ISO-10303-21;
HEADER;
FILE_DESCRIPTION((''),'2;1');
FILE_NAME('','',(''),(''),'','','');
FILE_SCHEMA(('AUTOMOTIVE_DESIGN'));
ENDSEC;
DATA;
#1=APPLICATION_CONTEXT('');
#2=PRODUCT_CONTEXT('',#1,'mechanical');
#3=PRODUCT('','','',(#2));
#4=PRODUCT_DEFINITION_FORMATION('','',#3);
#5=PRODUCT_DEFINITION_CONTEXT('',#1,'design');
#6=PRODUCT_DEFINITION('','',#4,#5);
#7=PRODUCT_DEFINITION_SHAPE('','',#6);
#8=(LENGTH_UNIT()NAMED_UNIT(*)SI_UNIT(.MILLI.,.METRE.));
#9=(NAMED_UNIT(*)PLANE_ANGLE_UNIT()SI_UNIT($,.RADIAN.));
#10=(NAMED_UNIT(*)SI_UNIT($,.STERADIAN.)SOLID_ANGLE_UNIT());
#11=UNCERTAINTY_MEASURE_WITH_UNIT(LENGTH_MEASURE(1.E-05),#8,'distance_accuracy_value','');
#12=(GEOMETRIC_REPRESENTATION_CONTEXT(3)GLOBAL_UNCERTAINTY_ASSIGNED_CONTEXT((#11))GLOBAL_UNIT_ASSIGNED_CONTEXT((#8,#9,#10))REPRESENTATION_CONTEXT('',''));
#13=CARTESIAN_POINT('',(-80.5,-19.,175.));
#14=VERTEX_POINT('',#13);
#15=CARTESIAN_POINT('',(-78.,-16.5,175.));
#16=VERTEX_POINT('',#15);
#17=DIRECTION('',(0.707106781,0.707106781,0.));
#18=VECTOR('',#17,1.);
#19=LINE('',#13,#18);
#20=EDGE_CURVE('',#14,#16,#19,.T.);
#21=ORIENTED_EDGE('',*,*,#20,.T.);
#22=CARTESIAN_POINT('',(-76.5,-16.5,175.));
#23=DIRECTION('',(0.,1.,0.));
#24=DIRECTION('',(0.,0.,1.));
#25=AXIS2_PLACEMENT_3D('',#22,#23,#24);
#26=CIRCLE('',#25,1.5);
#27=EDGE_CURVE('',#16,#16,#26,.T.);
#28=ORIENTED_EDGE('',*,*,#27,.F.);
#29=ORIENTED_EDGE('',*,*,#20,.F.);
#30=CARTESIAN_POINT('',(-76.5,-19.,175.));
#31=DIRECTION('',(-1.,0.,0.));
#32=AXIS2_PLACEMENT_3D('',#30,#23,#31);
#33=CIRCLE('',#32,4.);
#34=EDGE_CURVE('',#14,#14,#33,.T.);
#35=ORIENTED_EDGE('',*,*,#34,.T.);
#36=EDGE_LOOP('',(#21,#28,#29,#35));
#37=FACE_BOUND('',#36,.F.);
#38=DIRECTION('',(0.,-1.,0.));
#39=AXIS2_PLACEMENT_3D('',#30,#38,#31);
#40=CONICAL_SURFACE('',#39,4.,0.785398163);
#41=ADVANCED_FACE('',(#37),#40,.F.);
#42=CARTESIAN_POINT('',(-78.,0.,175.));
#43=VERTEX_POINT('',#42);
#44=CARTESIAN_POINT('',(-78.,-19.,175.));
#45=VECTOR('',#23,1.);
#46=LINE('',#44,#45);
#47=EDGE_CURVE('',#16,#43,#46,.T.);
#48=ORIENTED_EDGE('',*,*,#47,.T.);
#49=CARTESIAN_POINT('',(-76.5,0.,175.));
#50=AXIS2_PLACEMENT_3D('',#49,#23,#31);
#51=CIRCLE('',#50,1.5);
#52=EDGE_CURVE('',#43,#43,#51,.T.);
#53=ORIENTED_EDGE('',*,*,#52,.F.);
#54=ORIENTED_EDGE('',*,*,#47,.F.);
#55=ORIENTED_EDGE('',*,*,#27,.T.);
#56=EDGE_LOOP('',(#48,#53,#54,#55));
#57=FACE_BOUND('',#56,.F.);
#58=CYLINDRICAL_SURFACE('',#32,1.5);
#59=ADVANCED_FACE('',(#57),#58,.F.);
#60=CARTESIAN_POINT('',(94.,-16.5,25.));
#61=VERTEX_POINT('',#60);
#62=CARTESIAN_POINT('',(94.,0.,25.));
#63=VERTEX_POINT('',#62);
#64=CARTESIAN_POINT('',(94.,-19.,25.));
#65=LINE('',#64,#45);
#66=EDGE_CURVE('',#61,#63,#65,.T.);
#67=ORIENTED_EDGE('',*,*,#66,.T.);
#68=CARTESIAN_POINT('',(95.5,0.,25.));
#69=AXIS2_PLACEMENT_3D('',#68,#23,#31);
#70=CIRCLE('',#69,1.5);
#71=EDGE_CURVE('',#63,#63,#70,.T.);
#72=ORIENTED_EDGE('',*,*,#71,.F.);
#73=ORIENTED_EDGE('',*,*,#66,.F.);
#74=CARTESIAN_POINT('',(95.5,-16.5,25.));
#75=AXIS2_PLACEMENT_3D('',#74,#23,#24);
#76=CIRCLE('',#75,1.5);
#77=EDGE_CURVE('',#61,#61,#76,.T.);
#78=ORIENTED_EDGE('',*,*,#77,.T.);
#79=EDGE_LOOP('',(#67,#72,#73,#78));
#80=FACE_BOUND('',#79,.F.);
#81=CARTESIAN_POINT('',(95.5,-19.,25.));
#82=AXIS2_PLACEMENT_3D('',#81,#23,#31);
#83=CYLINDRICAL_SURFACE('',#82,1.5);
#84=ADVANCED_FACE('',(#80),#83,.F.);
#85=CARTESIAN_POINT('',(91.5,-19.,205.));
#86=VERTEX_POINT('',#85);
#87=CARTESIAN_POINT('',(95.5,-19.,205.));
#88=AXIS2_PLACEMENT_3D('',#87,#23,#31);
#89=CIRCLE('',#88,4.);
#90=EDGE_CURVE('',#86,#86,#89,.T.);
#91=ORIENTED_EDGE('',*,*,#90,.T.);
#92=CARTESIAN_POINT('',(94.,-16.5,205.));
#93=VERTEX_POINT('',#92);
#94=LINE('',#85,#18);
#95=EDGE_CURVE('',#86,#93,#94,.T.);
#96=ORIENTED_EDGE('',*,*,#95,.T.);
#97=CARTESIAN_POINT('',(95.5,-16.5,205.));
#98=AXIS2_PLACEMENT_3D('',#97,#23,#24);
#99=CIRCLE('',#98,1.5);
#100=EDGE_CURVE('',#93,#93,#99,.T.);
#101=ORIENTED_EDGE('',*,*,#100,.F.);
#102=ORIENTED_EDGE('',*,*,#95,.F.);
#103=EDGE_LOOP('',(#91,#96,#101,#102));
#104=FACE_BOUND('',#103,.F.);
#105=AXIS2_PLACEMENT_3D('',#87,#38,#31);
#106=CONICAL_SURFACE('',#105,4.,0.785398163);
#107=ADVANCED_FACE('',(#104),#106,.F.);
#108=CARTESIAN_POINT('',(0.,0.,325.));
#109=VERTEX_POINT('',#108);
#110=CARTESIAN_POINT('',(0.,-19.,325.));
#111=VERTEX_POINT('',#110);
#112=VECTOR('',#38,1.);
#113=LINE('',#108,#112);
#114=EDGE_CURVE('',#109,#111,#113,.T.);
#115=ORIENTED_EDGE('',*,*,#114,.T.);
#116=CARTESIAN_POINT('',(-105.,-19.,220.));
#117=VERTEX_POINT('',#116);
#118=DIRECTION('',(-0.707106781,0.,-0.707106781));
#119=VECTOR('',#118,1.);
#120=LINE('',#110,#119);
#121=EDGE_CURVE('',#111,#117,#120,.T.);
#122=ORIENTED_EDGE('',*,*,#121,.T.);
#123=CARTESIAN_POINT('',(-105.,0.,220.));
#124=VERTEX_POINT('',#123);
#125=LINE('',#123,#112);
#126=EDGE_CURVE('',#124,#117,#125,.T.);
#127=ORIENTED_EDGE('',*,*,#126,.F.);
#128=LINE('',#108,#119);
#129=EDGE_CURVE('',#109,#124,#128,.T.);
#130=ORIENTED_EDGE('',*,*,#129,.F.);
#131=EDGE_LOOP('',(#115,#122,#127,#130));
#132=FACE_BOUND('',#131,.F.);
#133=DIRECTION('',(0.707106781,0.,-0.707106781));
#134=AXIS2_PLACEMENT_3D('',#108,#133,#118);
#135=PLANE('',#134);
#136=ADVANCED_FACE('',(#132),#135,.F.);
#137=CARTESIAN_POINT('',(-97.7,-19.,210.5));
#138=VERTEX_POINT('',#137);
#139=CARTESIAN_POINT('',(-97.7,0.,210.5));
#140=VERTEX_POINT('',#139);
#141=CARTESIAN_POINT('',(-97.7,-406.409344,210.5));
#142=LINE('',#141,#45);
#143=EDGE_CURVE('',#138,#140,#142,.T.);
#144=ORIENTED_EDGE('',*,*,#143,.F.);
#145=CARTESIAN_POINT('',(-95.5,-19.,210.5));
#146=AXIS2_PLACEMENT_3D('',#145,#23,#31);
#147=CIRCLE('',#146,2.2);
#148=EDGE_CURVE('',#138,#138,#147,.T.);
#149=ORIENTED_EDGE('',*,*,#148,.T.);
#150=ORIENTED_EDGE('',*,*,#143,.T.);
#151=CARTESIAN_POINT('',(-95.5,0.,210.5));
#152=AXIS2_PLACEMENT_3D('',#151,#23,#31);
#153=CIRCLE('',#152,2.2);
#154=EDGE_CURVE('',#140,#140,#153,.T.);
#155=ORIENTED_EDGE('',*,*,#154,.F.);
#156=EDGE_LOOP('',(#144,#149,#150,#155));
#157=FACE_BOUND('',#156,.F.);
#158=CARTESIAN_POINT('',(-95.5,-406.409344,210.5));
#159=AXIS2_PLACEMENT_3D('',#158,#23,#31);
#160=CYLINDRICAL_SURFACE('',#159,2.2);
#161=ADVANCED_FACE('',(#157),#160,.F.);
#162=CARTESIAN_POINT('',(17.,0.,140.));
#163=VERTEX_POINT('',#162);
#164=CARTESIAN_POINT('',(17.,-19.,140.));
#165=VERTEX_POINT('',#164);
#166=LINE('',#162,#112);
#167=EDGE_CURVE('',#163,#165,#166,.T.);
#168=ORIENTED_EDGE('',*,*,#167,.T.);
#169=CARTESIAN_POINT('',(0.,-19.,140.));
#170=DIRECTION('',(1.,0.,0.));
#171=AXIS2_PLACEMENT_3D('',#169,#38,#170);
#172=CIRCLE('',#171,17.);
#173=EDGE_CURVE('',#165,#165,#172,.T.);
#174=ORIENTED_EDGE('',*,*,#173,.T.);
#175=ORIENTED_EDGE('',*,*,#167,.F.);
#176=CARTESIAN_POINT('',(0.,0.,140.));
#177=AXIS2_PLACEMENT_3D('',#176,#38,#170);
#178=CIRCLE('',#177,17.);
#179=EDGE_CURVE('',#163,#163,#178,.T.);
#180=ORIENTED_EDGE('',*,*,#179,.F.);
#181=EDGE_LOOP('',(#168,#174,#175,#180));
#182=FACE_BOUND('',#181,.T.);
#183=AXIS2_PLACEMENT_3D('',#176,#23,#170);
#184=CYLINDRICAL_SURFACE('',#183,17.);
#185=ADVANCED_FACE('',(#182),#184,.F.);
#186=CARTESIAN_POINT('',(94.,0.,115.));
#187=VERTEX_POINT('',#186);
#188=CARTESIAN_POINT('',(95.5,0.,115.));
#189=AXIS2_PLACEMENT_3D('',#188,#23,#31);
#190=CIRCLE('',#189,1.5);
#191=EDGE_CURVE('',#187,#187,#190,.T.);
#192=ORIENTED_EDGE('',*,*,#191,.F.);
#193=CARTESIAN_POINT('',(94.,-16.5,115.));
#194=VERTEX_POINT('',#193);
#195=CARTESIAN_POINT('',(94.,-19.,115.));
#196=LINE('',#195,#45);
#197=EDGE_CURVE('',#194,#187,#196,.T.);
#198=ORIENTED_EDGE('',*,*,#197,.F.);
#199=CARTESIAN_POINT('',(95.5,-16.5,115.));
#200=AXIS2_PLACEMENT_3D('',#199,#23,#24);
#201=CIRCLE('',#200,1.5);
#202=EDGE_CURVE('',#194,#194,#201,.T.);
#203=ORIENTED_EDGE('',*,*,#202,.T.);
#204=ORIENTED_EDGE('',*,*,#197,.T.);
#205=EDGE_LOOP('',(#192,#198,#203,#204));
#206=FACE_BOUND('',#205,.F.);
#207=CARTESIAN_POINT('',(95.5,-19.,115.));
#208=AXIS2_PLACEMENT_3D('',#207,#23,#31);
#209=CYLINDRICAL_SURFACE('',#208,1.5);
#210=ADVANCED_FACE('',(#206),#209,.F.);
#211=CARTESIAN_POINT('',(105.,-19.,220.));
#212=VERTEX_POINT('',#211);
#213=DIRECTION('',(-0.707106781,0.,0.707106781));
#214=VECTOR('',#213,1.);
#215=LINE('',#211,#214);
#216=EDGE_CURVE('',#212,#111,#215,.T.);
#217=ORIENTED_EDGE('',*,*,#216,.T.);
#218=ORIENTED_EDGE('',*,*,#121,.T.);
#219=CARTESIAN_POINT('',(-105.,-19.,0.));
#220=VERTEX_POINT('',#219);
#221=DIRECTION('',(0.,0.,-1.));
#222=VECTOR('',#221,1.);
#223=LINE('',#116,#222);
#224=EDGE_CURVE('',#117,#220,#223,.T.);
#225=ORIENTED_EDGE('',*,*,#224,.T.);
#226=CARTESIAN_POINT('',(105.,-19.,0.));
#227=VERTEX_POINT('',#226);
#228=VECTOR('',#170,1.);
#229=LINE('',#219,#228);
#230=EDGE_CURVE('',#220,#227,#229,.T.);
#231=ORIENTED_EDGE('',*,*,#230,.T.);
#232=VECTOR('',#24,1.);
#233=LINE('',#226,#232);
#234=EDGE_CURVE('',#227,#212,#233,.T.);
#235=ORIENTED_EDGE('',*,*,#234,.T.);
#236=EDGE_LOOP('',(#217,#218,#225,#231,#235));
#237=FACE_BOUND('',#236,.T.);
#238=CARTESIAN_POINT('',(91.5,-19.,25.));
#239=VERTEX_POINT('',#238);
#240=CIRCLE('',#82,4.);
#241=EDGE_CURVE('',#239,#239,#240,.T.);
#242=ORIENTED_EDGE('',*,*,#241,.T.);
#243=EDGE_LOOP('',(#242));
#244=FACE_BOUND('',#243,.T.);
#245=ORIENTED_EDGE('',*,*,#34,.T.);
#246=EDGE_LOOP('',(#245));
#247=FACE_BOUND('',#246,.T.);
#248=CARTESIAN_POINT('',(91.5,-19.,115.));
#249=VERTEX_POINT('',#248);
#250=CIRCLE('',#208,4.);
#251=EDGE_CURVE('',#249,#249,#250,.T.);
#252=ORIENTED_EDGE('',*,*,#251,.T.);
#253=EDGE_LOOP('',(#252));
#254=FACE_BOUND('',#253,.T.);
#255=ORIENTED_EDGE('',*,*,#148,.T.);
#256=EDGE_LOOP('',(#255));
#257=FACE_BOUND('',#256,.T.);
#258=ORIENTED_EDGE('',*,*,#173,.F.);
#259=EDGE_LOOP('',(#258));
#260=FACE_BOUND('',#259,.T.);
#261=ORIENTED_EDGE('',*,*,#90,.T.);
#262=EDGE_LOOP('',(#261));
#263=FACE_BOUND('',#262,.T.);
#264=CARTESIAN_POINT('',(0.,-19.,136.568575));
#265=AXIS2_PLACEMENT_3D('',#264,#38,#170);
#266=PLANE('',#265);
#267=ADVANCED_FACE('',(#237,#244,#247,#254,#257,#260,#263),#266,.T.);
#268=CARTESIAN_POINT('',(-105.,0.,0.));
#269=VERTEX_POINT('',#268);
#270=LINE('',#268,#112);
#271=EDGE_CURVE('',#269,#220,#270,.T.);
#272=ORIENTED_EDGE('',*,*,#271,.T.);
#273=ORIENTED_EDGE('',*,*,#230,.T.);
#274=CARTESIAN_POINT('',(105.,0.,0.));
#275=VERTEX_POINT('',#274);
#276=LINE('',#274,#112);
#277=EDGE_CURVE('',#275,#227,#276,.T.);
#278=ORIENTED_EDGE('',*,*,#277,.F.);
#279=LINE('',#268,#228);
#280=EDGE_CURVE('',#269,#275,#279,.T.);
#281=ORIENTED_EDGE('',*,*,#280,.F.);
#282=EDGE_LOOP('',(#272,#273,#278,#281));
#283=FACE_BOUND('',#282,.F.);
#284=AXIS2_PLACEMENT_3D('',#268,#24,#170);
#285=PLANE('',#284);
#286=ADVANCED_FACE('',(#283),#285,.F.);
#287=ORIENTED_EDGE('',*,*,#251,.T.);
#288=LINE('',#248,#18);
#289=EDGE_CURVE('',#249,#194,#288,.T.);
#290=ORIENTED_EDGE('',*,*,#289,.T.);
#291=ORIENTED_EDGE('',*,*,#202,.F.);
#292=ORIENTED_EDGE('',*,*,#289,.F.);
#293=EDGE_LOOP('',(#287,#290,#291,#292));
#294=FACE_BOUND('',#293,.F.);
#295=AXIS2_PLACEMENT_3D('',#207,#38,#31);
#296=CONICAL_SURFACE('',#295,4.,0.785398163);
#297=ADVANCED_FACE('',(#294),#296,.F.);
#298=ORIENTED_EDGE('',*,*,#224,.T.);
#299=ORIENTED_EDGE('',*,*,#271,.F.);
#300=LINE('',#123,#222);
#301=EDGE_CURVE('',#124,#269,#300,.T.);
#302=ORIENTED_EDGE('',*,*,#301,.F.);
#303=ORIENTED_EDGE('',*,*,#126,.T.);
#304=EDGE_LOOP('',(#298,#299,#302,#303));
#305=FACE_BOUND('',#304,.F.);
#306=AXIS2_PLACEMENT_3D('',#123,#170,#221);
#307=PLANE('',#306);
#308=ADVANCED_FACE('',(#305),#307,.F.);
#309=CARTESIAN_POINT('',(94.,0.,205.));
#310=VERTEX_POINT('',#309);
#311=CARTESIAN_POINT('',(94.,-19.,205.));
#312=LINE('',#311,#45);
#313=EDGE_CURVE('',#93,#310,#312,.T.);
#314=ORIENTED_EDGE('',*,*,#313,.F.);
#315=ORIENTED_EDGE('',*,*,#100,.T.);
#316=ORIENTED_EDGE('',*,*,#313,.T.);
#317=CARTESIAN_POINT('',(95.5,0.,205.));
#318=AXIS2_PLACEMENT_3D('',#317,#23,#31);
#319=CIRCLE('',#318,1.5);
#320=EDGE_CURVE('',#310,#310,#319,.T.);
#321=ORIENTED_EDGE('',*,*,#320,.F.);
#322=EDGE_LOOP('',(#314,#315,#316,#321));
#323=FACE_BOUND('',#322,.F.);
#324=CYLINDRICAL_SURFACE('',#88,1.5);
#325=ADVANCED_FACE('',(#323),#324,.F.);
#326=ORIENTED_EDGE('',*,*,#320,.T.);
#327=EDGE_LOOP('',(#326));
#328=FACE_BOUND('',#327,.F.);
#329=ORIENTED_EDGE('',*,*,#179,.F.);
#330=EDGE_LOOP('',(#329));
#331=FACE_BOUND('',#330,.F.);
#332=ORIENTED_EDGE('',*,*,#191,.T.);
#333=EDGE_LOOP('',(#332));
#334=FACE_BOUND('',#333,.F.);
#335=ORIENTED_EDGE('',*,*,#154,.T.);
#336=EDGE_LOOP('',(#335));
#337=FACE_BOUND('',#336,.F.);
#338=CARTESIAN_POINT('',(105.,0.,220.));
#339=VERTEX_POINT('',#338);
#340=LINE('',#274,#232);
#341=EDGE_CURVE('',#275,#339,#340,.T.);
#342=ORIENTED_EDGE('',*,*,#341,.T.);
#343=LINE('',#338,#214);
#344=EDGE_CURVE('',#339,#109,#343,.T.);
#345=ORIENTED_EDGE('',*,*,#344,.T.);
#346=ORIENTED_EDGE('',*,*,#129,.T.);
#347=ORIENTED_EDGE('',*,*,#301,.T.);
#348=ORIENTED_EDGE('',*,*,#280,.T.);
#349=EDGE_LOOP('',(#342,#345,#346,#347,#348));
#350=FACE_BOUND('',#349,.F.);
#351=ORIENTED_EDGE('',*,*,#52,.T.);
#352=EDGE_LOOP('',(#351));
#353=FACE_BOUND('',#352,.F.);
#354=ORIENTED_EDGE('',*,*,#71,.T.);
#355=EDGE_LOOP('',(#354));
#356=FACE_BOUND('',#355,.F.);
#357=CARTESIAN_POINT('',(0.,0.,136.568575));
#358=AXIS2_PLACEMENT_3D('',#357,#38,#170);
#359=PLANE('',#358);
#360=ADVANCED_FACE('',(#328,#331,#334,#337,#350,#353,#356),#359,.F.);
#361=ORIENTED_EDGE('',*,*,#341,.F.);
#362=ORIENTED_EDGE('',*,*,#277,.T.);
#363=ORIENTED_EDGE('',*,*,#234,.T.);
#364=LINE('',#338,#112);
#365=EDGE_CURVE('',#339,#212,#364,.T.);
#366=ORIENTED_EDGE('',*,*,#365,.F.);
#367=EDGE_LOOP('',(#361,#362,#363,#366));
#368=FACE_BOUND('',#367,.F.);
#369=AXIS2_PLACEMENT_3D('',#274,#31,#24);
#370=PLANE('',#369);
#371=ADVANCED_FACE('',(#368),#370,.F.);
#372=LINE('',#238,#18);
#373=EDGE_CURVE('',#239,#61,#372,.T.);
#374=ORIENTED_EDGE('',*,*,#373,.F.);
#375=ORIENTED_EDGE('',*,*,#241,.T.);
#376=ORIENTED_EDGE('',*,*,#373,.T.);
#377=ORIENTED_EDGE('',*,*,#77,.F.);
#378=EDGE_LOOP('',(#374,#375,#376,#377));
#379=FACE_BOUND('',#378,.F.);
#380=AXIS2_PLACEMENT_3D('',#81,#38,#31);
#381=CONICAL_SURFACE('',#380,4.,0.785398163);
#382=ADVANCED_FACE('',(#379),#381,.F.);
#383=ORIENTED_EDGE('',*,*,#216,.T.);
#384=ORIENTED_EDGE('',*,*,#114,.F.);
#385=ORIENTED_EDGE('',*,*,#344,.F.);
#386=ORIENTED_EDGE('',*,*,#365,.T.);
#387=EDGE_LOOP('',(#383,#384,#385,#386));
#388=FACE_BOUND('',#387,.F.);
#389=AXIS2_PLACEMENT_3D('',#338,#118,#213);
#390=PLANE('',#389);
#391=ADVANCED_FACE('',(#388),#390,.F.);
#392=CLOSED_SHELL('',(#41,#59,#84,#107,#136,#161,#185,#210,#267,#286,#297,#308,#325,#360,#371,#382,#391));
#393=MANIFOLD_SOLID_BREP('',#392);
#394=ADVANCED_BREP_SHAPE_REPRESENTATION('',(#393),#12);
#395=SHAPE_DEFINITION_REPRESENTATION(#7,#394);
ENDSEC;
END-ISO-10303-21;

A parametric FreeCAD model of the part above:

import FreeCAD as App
import Part
import Sketcher
from FreeCAD import Vector


def add_polygon(sketch, points):
    """Adds a closed chain of lines whose ends are joined by coincident constraints."""
    first, n = sketch.GeometryCount, len(points)
    for a, b in zip(points, points[1:] + points[:1]):
        sketch.addGeometry(Part.LineSegment(App.Vector(*a, 0), App.Vector(*b, 0)), False)
    for i in range(n):
        sketch.addConstraint(Sketcher.Constraint("Coincident", first + i, 2, first + (i + 1) % n, 1))

doc = App.newDocument("Part")
body = doc.addObject("PartDesign::Body", "Body")

# Sketch on XZ plane
sketch1 = doc.addObject("Sketcher::SketchObject", "Sketch")
body.addObject(sketch1)
sketch1.AttachmentSupport = (doc.XZ_Plane, [""])
sketch1.MapMode = "FlatFace"
add_polygon(sketch1, [(105, 0), (105, 220), (0, 325), (-105, 220), (-105, 0)])  # lines 0-4
sketch1.addGeometry(Part.Circle(Vector(0, 140, 0), Vector(0, 0, 1), 17), False)  # 5
sketch1.addConstraint(Sketcher.Constraint("Vertical", 0))
sketch1.addConstraint(Sketcher.Constraint("Vertical", 3))
sketch1.addConstraint(Sketcher.Constraint("Horizontal", 4))
sketch1.addConstraint(Sketcher.Constraint("Symmetric", 3, 2, 4, 2, -1, 1))
sketch1.addConstraint(Sketcher.Constraint("PointOnObject", 5, 3, -2))
sketch1.addConstraint(Sketcher.Constraint("PointOnObject", 1, 2, -2))
sketch1.addConstraint(Sketcher.Constraint("Perpendicular", 1, 2))
sketch1.addConstraint(Sketcher.Constraint("Horizontal", 0, 2, 2, 2))
sketch1.addConstraint(Sketcher.Constraint("Diameter", 5, 34.0))
sketch1.addConstraint(Sketcher.Constraint("DistanceX", 4, 1, 4, 2, 210.0))
sketch1.addConstraint(Sketcher.Constraint("DistanceY", 0, 1, 0, 2, 220.0))
sketch1.addConstraint(Sketcher.Constraint("DistanceY", -1, 1, 5, 3, 140.0))
pad1 = doc.addObject("PartDesign::Pad", "Pad")
body.addObject(pad1)
pad1.Profile = sketch1
pad1.Length = 19

# Sketch on XZ plane
sketch2 = doc.addObject("Sketcher::SketchObject", "Sketch001")
body.addObject(sketch2)
sketch2.AttachmentSupport = (doc.XZ_Plane, [""])
sketch2.MapMode = "FlatFace"
sketch2.AttachmentOffset = App.Placement(Vector(0, 0, 19), App.Rotation())
sketch2.addGeometry(Part.Circle(Vector(95.5, 25, 0), Vector(0, 0, 1), 1.5), False)
sketch2.addGeometry(Part.Circle(Vector(95.5, 115, 0), Vector(0, 0, 1), 1.5), False)
sketch2.addGeometry(Part.Circle(Vector(95.5, 205, 0), Vector(0, 0, 1), 1.5), False)
sketch2.addGeometry(Part.Circle(Vector(-76.5, 175, 0), Vector(0, 0, 1), 1.5), False)
sketch2.addConstraint(Sketcher.Constraint("Equal", 0, 1))
sketch2.addConstraint(Sketcher.Constraint("Equal", 1, 2))
sketch2.addConstraint(Sketcher.Constraint("Equal", 2, 3))
sketch2.addConstraint(Sketcher.Constraint("Vertical", 0, 3, 1, 3))
sketch2.addConstraint(Sketcher.Constraint("Vertical", 1, 3, 2, 3))
sketch2.addConstraint(Sketcher.Constraint("Diameter", 0, 3.0))
sketch2.addConstraint(Sketcher.Constraint("DistanceY", -1, 1, 0, 3, 25.0))
sketch2.addConstraint(Sketcher.Constraint("DistanceY", -1, 1, 1, 3, 115.0))
sketch2.addConstraint(Sketcher.Constraint("DistanceY", -1, 1, 2, 3, 205.0))
sketch2.addConstraint(Sketcher.Constraint("DistanceY", -1, 1, 3, 3, 175.0))
sketch2.addConstraint(Sketcher.Constraint("DistanceX", 3, 3, 2, 3, 172.0))
sketch2.addConstraint(Sketcher.Constraint("DistanceX", -1, 1, 0, 3, 95.5))
doc.recompute()
hole = doc.addObject("PartDesign::Hole", "Hole")
body.addObject(hole)
hole.Profile = sketch2
hole.ThreadType = "None"
hole.Diameter = 3
hole.DepthType = "ThroughAll"
hole.HoleCutType = "Countersink"
hole.HoleCutDiameter = 8
hole.HoleCutCountersinkAngle = 90

# Sketch on XZ plane
sketch3 = doc.addObject("Sketcher::SketchObject", "Sketch002")
body.addObject(sketch3)
sketch3.AttachmentSupport = (doc.XZ_Plane, [""])
sketch3.MapMode = "FlatFace"
sketch3.AttachmentOffset = App.Placement(Vector(0, 0, 19), App.Rotation())
sketch3.addGeometry(Part.Circle(Vector(-95.5, 210.5, 0), Vector(0, 0, 1), 2.2), False)
sketch3.addConstraint(Sketcher.Constraint("Diameter", 0, 4.4))
sketch3.addConstraint(Sketcher.Constraint("DistanceX", 0, 3, -1, 1, 95.5))
sketch3.addConstraint(Sketcher.Constraint("DistanceY", -1, 1, 0, 3, 210.5))
doc.recompute()
hole2 = doc.addObject("PartDesign::Hole", "Hole001")
body.addObject(hole2)
hole2.Profile = sketch3
hole2.ThreadType = "None"
hole2.Diameter = 4.4
hole2.DepthType = "ThroughAll"

doc.recompute()
